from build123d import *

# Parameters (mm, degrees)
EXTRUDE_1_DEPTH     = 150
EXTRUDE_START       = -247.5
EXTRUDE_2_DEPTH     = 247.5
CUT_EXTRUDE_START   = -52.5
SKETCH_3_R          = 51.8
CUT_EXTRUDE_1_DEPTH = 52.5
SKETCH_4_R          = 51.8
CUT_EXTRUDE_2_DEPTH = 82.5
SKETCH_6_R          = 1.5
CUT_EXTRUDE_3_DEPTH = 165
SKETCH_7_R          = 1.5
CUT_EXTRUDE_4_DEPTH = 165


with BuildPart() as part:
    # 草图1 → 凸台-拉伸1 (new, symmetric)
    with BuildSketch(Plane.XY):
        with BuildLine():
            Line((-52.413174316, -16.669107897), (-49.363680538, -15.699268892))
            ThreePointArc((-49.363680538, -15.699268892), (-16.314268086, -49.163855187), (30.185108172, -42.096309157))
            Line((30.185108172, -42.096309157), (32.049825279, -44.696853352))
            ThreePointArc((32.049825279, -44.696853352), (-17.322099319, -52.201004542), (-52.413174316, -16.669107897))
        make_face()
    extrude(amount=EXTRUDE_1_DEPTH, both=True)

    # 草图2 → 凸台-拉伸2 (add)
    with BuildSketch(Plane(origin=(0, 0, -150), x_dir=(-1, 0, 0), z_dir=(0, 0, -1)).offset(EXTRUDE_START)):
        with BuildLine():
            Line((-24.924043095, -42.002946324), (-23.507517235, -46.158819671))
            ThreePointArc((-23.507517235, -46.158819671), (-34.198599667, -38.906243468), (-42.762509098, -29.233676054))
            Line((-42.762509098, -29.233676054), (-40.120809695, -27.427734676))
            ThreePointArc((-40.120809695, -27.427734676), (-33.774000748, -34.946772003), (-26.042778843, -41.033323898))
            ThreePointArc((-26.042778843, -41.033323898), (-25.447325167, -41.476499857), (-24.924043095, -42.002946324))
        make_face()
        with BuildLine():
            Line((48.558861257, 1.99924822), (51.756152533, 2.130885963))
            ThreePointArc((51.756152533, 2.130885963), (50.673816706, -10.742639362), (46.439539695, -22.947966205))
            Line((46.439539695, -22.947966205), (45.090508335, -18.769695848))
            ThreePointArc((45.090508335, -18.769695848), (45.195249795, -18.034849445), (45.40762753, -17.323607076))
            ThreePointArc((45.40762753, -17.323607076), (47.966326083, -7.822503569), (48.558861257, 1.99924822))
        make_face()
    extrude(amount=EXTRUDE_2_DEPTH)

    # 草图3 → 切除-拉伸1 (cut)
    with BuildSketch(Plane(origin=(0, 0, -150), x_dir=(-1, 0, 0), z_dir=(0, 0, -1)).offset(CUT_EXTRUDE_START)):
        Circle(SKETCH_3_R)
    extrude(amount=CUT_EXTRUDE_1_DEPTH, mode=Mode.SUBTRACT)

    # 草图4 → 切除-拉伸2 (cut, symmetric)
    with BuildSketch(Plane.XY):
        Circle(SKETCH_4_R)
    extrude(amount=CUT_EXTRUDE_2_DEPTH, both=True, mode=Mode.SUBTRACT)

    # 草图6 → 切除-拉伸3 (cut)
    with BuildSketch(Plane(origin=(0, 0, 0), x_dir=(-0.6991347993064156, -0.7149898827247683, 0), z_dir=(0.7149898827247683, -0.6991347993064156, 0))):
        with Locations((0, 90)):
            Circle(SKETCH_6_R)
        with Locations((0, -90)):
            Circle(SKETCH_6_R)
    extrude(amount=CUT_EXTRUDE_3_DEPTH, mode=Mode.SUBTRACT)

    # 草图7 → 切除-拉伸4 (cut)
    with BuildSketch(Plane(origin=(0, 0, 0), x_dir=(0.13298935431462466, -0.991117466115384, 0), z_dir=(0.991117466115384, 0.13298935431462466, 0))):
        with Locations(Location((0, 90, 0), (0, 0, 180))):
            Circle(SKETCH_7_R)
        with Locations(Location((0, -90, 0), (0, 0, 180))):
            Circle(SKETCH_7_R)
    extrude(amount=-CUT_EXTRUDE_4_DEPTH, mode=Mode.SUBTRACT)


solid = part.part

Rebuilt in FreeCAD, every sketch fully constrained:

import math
import FreeCAD as App
import Part
import Sketcher

V = App.Vector
Q = App.Units.Quantity

doc = App.newDocument("Part")
params = doc.addObject("Spreadsheet::Sheet", "Params")
for row, (alias, value) in enumerate([
    ("sketch1_radius", "55 mm"),
    ("sketch1_radius2", "51.8 mm"),
    ("pad1_length", "300 mm"),
    ("sketch2_radius", "5 mm"),
    ("sketch2_radius2", "48.6 mm"),
    ("sketch2_radius3", "51.8 mm"),
    ("pad2_length", "247.5 mm"),
    ("sketch3_diameter", "103.6 mm"),
    ("pocket1_length", "52.5 mm"),
    ("sketch4_diameter", "103.6 mm"),
    ("pocket2_length", "165 mm"),
    ("sketch5_diameter", "3 mm"),
    ("pocket3_length", "165 mm"),
    ("sketch6_diameter", "3 mm"),
    ("pocket4_length", "165 mm"),
], start=1):
    params.set(f"A{row}", alias)
    params.set(f"B{row}", "=" + value)
    params.setAlias(f"B{row}", alias)

body = doc.addObject("PartDesign::Body", "Body")

# Sketch on XY plane
sketch1 = body.newObject("Sketcher::SketchObject", "Sketch")
sketch1.AttachmentSupport = (doc.getObject("XY_Plane"), [""])
sketch1.MapMode = "FlatFace"
sketch1.addGeometry([
    Part.LineSegment(V(-49.363681, -15.699269, 0), V(-52.413174, -16.669108, 0)),
    Part.ArcOfCircle(Part.Circle(V(0, 0, 0), V(0, 0, 1), 55), math.radians(-162.35763), math.radians(-54.35763)),
    Part.LineSegment(V(32.049825, -44.696853, 0), V(30.185108, -42.096309, 0)),
    Part.ArcOfCircle(Part.Circle(V(0, 0, 0), V(0, 0, 1), 51.8), math.radians(-162.35763), math.radians(-54.35763)),
], False)
sketch1.addConstraint([
    Sketcher.Constraint("Coincident", 0, 2, 1, 1),
    Sketcher.Constraint("Coincident", 1, 2, 2, 1),
    Sketcher.Constraint("Coincident", 2, 2, 3, 2),
    Sketcher.Constraint("Coincident", 3, 1, 0, 1),
    Sketcher.Constraint("Coincident", 1, 3, -1, 1),
    Sketcher.Constraint("Coincident", 3, 3, -1, 1),
    Sketcher.Constraint("Radius", 1, Q("55 mm")),
    Sketcher.Constraint("Radius", 3, Q("51.8 mm")),
    Sketcher.Constraint("DistanceX", 0, 2, 1, 2, Q("84.463 mm")),
    Sketcher.Constraint("DistanceY", 2, 2, 0, 2, Q("25.427201 mm")),
    Sketcher.Constraint("DistanceX", -1, 1, 2, 2, Q("30.185108 mm")),
    Sketcher.Constraint("DistanceX", 3, 1, -1, 1, Q("49.363681 mm")),
])
sketch1.setExpression("Constraints[6]", "Params.sketch1_radius")
sketch1.setExpression("Constraints[7]", "Params.sketch1_radius2")
pad1 = body.newObject("PartDesign::Pad", "Pad")
pad1.Profile = sketch1
pad1.setExpression("Length", "Params.pad1_length")
pad1.Midplane = True

# Sketch on XY plane
sketch2 = body.newObject("Sketcher::SketchObject", "Sketch001")
sketch2.AttachmentSupport = (doc.getObject("XY_Plane"), [""])
sketch2.MapMode = "FlatFace"
sketch2.AttachmentOffset = App.Placement(V(0, 0, 97.5), App.Rotation())
sketch2.addGeometry([
    Part.LineSegment(V(23.507517, -46.15882, 0), V(24.924043, -42.002946, 0)),  # 0
    Part.ArcOfCircle(Part.Circle(V(28.722077, -45.254859, 0), V(0, 0, 1), 5), math.radians(122.402229), math.radians(139.429546)),  # 1
    Part.ArcOfCircle(Part.Circle(V(0, 0, 0), V(0, 0, 1), 48.6), math.radians(-57.597771), math.radians(-34.35763)),  # 2
    Part.LineSegment(V(40.12081, -27.427735, 0), V(42.762509, -29.233676, 0)),  # 3
    Part.ArcOfCircle(Part.Circle(V(0, 0, 0), V(0, 0, 1), 51.8), math.radians(-63.011409), math.radians(-34.35763)),  # 4
    Part.LineSegment(V(-51.756153, 2.130886, 0), V(-48.558861, 1.999248, 0)),  # 5
    Part.ArcOfCircle(Part.Circle(V(0, 0, 0), V(0, 0, 1), 48.6), math.radians(177.64237), math.radians(200.882511)),  # 6
    Part.ArcOfCircle(Part.Circle(V(-50.079194, -19.105871, 0), V(0, 0, 1), 5), math.radians(3.855194), math.radians(20.882511)),  # 7
    Part.LineSegment(V(-45.090508, -18.769696, 0), V(-46.43954, -22.947966, 0)),  # 8
    Part.ArcOfCircle(Part.Circle(V(0, 0, 0), V(0, 0, 1), 51.8), math.radians(177.64237), math.radians(206.296149)),  # 9
], False)
sketch2.addConstraint([
    Sketcher.Constraint("Coincident", 0, 2, 1, 2),
    Sketcher.Constraint("Tangent", 1, 1, 2, 1),
    Sketcher.Constraint("Coincident", 2, 2, 3, 1),
    Sketcher.Constraint("Coincident", 3, 2, 4, 2),
    Sketcher.Constraint("Coincident", 4, 1, 0, 1),
    Sketcher.Constraint("Coincident", 5, 2, 6, 1),
    Sketcher.Constraint("Tangent", 6, 2, 7, 2),
    Sketcher.Constraint("Coincident", 7, 1, 8, 1),
    Sketcher.Constraint("Coincident", 8, 2, 9, 2),
    Sketcher.Constraint("Coincident", 9, 1, 5, 1),
    Sketcher.Constraint("Coincident", 2, 3, -1, 1),
    Sketcher.Constraint("Coincident", 4, 3, -1, 1),
    Sketcher.Constraint("Coincident", 6, 3, -1, 1),
    Sketcher.Constraint("Coincident", 9, 3, -1, 1),
    Sketcher.Constraint("Equal", 2, 6),
    Sketcher.Constraint("Equal", 1, 7),
    Sketcher.Constraint("Equal", 4, 9),
    Sketcher.Constraint("Equal", 0, 8),
    Sketcher.Constraint("Radius", 1, Q("5 mm")),
    Sketcher.Constraint("Radius", 2, Q("48.6 mm")),
    Sketcher.Constraint("Radius", 4, Q("51.8 mm")),
    Sketcher.Constraint("DistanceX", 1, 1, 1, 3, Q("2.679298 mm")),
    Sketcher.Constraint("DistanceX", 2, 2, 3, 2, Q("2.641699 mm")),
    Sketcher.Constraint("DistanceY", 7, 3, -1, 1, Q("19.105871 mm")),
    Sketcher.Constraint("DistanceX", -1, 1, 2, 2, Q("40.12081 mm")),
    Sketcher.Constraint("DistanceY", 4, 1, -1, 1, Q("46.15882 mm")),
    Sketcher.Constraint("DistanceX", 5, 2, -1, 1, Q("48.558861 mm")),
    Sketcher.Constraint("DistanceX", 7, 1, -1, 1, Q("45.090508 mm")),
    Sketcher.Constraint("DistanceX", 8, 2, -1, 1, Q("46.43954 mm")),
    Sketcher.Constraint("DistanceX", 9, 1, 5, 2, Q("3.197291 mm")),
])
sketch2.setExpression("Constraints[18]", "Params.sketch2_radius")
sketch2.setExpression("Constraints[19]", "Params.sketch2_radius2")
sketch2.setExpression("Constraints[20]", "Params.sketch2_radius3")
pad2 = body.newObject("PartDesign::Pad", "Pad001")
pad2.Profile = sketch2
pad2.setExpression("Length", "Params.pad2_length")
pad2.Reversed = True

# Sketch on XY plane
sketch3 = body.newObject("Sketcher::SketchObject", "Sketch002")
sketch3.AttachmentSupport = (doc.getObject("XY_Plane"), [""])
sketch3.MapMode = "FlatFace"
sketch3.AttachmentOffset = App.Placement(V(0, 0, -97.5), App.Rotation())
sketch3.addGeometry(Part.Circle(V(0, 0, 0), V(0, 0, 1), 51.8), False)
sketch3.addConstraint([
    Sketcher.Constraint("Coincident", 0, 3, -1, 1),
    Sketcher.Constraint("Diameter", 0, Q("103.6 mm")),
])
sketch3.setExpression("Constraints[1]", "Params.sketch3_diameter")
pocket1 = body.newObject("PartDesign::Pocket", "Pocket")
pocket1.Profile = sketch3
pocket1.setExpression("Length", "Params.pocket1_length")

# Sketch on XY plane
sketch4 = body.newObject("Sketcher::SketchObject", "Sketch003")
sketch4.AttachmentSupport = (doc.getObject("XY_Plane"), [""])
sketch4.MapMode = "FlatFace"
sketch4.addGeometry(Part.Circle(V(0, 0, 0), V(0, 0, 1), 51.8), False)
sketch4.addConstraint([
    Sketcher.Constraint("Coincident", 0, 3, -1, 1),
    Sketcher.Constraint("Diameter", 0, Q("103.6 mm")),
])
sketch4.setExpression("Constraints[1]", "Params.sketch4_diameter")
pocket2 = body.newObject("PartDesign::Pocket", "Pocket001")
pocket2.Profile = sketch4
pocket2.setExpression("Length", "Params.pocket2_length")
pocket2.Midplane = True

# Sketch on an angled plane
sketch5 = body.newObject("Sketcher::SketchObject", "Sketch004")
sketch5.Placement = App.Placement(V(0, 0, 0), App.Rotation(V(-0.699134799, -0.714989883, 0), V(0, 0, -1), V(0.714989883, -0.699134799, 0), "ZXY"))
sketch5.addGeometry([
    Part.Circle(V(0, 90, 0), V(0, 0, 1), 1.5),
    Part.Circle(V(0, -90, 0), V(0, 0, 1), 1.5),
], False)
sketch5.addConstraint([
    Sketcher.Constraint("Equal", 0, 1),
    Sketcher.Constraint("Symmetric", 0, 3, 1, 3, -1, 1),
    Sketcher.Constraint("PointOnObject", 0, 3, -2),
    Sketcher.Constraint("Diameter", 0, Q("3 mm")),
    Sketcher.Constraint("DistanceY", -1, 1, 0, 3, Q("90 mm")),
])
sketch5.setExpression("Constraints[3]", "Params.sketch5_diameter")
pocket3 = body.newObject("PartDesign::Pocket", "Pocket002")
pocket3.Profile = sketch5
pocket3.setExpression("Length", "Params.pocket3_length")
pocket3.Reversed = True

# Sketch on an angled plane
sketch6 = body.newObject("Sketcher::SketchObject", "Sketch005")
sketch6.Placement = App.Placement(V(0, 0, 0), App.Rotation(V(0.132989354, -0.991117466, 0), V(0, 0, -1), V(0.991117466, 0.132989354, 0), "ZXY"))
sketch6.addGeometry([
    Part.Circle(V(0, 90, 0), V(0, 0, 1), 1.5),
    Part.Circle(V(0, -90, 0), V(0, 0, 1), 1.5),
], False)
sketch6.addConstraint([
    Sketcher.Constraint("Equal", 0, 1),
    Sketcher.Constraint("Symmetric", 0, 3, 1, 3, -1, 1),
    Sketcher.Constraint("PointOnObject", 0, 3, -2),
    Sketcher.Constraint("Diameter", 0, Q("3 mm")),
    Sketcher.Constraint("DistanceY", -1, 1, 0, 3, Q("90 mm")),
])
sketch6.setExpression("Constraints[3]", "Params.sketch6_diameter")
pocket4 = body.newObject("PartDesign::Pocket", "Pocket003")
pocket4.Profile = sketch6
pocket4.setExpression("Length", "Params.pocket4_length")

doc.recompute()
